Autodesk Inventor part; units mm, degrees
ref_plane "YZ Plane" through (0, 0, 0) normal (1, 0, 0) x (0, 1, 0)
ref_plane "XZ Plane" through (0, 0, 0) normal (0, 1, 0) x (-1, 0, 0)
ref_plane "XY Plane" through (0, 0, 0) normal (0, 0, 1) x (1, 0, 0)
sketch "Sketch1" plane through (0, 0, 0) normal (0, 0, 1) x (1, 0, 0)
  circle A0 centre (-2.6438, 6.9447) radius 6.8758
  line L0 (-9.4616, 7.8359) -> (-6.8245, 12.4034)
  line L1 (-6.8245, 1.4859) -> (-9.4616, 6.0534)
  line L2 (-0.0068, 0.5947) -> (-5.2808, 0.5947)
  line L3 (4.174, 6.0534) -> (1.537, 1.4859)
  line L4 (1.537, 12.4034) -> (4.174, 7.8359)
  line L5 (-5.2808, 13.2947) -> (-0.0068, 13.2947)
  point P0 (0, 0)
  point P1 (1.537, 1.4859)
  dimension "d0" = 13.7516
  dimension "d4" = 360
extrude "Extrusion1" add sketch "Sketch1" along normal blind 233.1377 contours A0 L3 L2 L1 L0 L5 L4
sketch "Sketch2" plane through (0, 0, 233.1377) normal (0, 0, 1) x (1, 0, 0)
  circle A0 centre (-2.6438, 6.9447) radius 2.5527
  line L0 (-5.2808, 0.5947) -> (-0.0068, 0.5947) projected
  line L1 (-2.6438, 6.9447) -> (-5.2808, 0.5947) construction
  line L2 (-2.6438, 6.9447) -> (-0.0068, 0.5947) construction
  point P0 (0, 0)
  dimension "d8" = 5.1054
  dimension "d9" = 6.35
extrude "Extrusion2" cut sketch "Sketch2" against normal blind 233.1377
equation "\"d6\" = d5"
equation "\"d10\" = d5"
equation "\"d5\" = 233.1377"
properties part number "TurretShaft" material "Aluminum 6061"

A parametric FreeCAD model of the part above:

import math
import FreeCAD as App
import Part
import Sketcher
from FreeCAD import Vector
Q = App.Units.Quantity

doc = App.newDocument("Part")
body = doc.addObject("PartDesign::Body", "Body")

sketch1 = body.newObject("Sketcher::SketchObject", "Sketch")
sketch1.AttachmentSupport = (doc.getObject("XY_Plane"), [""])
sketch1.MapMode = "FlatFace"
sketch1.addGeometry(Part.ArcOfCircle(Part.Circle(Vector(-2.6438, 6.9447, 0), Vector(0, 0, 1), 6.8758), math.radians(-7.448114), math.radians(7.447287)), False)
sketch1.addGeometry(Part.LineSegment(Vector(4.174, 7.8359, 0), Vector(1.537, 12.4034, 0)), False)
sketch1.addGeometry(Part.ArcOfCircle(Part.Circle(Vector(-2.6438, 6.9447, 0), Vector(0, 0, 1), 6.8758), math.radians(52.551618), math.radians(67.448081)), False)
sketch1.addGeometry(Part.LineSegment(Vector(-0.0068, 13.2947, 0), Vector(-5.2808, 13.2947, 0)), False)
sketch1.addGeometry(Part.ArcOfCircle(Part.Circle(Vector(-2.6438, 6.9447, 0), Vector(0, 0, 1), 6.8758), math.radians(112.551919), math.radians(127.447721)), False)
sketch1.addGeometry(Part.LineSegment(Vector(-6.8245, 12.4034, 0), Vector(-9.4616, 7.8359, 0)), False)
sketch1.addGeometry(Part.ArcOfCircle(Part.Circle(Vector(-2.6438, 6.9447, 0), Vector(0, 0, 1), 6.8758), math.radians(172.552713), math.radians(187.448114)), False)
sketch1.addGeometry(Part.LineSegment(Vector(-9.4616, 6.0534, 0), Vector(-6.8245, 1.4859, 0)), False)
sketch1.addGeometry(Part.ArcOfCircle(Part.Circle(Vector(-2.6438, 6.9447, 0), Vector(0, 0, 1), 6.8758), math.radians(-127.447214), math.radians(-112.551919)), False)
sketch1.addGeometry(Part.LineSegment(Vector(-5.2808, 0.5947, 0), Vector(-0.0068, 0.5947, 0)), False)
sketch1.addGeometry(Part.ArcOfCircle(Part.Circle(Vector(-2.6438, 6.9447, 0), Vector(0, 0, 1), 6.8758), math.radians(-67.448081), math.radians(-52.552124)), False)
sketch1.addGeometry(Part.LineSegment(Vector(1.537, 1.4859, 0), Vector(4.174, 6.0534, 0)), False)
sketch1.addConstraint(Sketcher.Constraint("Coincident", 0, 2, 1, 1))
sketch1.addConstraint(Sketcher.Constraint("Coincident", 1, 2, 2, 1))
sketch1.addConstraint(Sketcher.Constraint("Coincident", 2, 2, 3, 1))
sketch1.addConstraint(Sketcher.Constraint("Coincident", 3, 2, 4, 1))
sketch1.addConstraint(Sketcher.Constraint("Coincident", 4, 2, 5, 1))
sketch1.addConstraint(Sketcher.Constraint("Coincident", 5, 2, 6, 1))
sketch1.addConstraint(Sketcher.Constraint("Coincident", 6, 2, 7, 1))
sketch1.addConstraint(Sketcher.Constraint("Coincident", 7, 2, 8, 1))
sketch1.addConstraint(Sketcher.Constraint("Coincident", 8, 2, 9, 1))
sketch1.addConstraint(Sketcher.Constraint("Coincident", 9, 2, 10, 1))
sketch1.addConstraint(Sketcher.Constraint("Coincident", 10, 2, 11, 1))
sketch1.addConstraint(Sketcher.Constraint("Coincident", 11, 2, 0, 1))
sketch1.addConstraint(Sketcher.Constraint("Horizontal", 3))
sketch1.addConstraint(Sketcher.Constraint("Horizontal", 9))
sketch1.addConstraint(Sketcher.Constraint("Coincident", 2, 3, 0, 3))
sketch1.addConstraint(Sketcher.Constraint("Coincident", 4, 3, 0, 3))
sketch1.addConstraint(Sketcher.Constraint("Coincident", 6, 3, 0, 3))
sketch1.addConstraint(Sketcher.Constraint("Coincident", 8, 3, 0, 3))
sketch1.addConstraint(Sketcher.Constraint("Coincident", 10, 3, 0, 3))
sketch1.addConstraint(Sketcher.Constraint("Equal", 0, 2))
sketch1.addConstraint(Sketcher.Constraint("Equal", 2, 4))
sketch1.addConstraint(Sketcher.Constraint("Equal", 4, 6))
sketch1.addConstraint(Sketcher.Constraint("Equal", 6, 8))
sketch1.addConstraint(Sketcher.Constraint("Equal", 8, 10))
sketch1.addConstraint(Sketcher.Constraint("Parallel", 1, 7))
sketch1.addConstraint(Sketcher.Constraint("Parallel", 5, 11))
sketch1.addConstraint(Sketcher.Constraint("Horizontal", 1, 2, 4, 2))
sketch1.addConstraint(Sketcher.Constraint("Horizontal", 0, 2, 5, 2))
sketch1.addConstraint(Sketcher.Constraint("Horizontal", 7, 2, 10, 2))
sketch1.addConstraint(Sketcher.Constraint("Vertical", 5, 2, 6, 2))
sketch1.addConstraint(Sketcher.Constraint("Vertical", 3, 2, 8, 2))
sketch1.addConstraint(Sketcher.Constraint("Radius", 0, Q("0.2707 in")))
sketch1.addConstraint(Sketcher.Constraint("Angle", 1, Q("119.9996 deg")))
sketch1.addConstraint(Sketcher.Constraint("DistanceY", 0, 3, 2, 2, Q("0.25 in")))
sketch1.addConstraint(Sketcher.Constraint("DistanceY", 10, 2, 0, 2, Q("0.25 in")))
sketch1.addConstraint(Sketcher.Constraint("DistanceY", -1, 1, 0, 2, Q("0.3085 in")))
sketch1.addConstraint(Sketcher.Constraint("DistanceX", -1, 1, 1, 2, Q("0.0605 in")))
pad1 = body.newObject("PartDesign::Pad", "Pad")
pad1.Profile = sketch1
pad1.Length = 233.1377

sketch2 = body.newObject("Sketcher::SketchObject", "Sketch001")
sketch2.AttachmentSupport = (doc.getObject("XY_Plane"), [""])
sketch2.MapMode = "FlatFace"
sketch2.AttachmentOffset = App.Placement(Vector(0, 0, 233.1377), App.Rotation())
sketch2.addGeometry(Part.Circle(Vector(-2.6438, 6.9447, 0), Vector(0, 0, 1), 2.5527), False)
sketch2.addConstraint(Sketcher.Constraint("Diameter", 0, Q("0.201 in")))
sketch2.addConstraint(Sketcher.Constraint("DistanceX", 0, 3, -1, 1, 2.6438))
sketch2.addConstraint(Sketcher.Constraint("DistanceY", -1, 1, 0, 3, 6.9447))
pocket1 = body.newObject("PartDesign::Pocket", "Pocket")
pocket1.Profile = sketch2
pocket1.Length = 233.1377

doc.recompute()
